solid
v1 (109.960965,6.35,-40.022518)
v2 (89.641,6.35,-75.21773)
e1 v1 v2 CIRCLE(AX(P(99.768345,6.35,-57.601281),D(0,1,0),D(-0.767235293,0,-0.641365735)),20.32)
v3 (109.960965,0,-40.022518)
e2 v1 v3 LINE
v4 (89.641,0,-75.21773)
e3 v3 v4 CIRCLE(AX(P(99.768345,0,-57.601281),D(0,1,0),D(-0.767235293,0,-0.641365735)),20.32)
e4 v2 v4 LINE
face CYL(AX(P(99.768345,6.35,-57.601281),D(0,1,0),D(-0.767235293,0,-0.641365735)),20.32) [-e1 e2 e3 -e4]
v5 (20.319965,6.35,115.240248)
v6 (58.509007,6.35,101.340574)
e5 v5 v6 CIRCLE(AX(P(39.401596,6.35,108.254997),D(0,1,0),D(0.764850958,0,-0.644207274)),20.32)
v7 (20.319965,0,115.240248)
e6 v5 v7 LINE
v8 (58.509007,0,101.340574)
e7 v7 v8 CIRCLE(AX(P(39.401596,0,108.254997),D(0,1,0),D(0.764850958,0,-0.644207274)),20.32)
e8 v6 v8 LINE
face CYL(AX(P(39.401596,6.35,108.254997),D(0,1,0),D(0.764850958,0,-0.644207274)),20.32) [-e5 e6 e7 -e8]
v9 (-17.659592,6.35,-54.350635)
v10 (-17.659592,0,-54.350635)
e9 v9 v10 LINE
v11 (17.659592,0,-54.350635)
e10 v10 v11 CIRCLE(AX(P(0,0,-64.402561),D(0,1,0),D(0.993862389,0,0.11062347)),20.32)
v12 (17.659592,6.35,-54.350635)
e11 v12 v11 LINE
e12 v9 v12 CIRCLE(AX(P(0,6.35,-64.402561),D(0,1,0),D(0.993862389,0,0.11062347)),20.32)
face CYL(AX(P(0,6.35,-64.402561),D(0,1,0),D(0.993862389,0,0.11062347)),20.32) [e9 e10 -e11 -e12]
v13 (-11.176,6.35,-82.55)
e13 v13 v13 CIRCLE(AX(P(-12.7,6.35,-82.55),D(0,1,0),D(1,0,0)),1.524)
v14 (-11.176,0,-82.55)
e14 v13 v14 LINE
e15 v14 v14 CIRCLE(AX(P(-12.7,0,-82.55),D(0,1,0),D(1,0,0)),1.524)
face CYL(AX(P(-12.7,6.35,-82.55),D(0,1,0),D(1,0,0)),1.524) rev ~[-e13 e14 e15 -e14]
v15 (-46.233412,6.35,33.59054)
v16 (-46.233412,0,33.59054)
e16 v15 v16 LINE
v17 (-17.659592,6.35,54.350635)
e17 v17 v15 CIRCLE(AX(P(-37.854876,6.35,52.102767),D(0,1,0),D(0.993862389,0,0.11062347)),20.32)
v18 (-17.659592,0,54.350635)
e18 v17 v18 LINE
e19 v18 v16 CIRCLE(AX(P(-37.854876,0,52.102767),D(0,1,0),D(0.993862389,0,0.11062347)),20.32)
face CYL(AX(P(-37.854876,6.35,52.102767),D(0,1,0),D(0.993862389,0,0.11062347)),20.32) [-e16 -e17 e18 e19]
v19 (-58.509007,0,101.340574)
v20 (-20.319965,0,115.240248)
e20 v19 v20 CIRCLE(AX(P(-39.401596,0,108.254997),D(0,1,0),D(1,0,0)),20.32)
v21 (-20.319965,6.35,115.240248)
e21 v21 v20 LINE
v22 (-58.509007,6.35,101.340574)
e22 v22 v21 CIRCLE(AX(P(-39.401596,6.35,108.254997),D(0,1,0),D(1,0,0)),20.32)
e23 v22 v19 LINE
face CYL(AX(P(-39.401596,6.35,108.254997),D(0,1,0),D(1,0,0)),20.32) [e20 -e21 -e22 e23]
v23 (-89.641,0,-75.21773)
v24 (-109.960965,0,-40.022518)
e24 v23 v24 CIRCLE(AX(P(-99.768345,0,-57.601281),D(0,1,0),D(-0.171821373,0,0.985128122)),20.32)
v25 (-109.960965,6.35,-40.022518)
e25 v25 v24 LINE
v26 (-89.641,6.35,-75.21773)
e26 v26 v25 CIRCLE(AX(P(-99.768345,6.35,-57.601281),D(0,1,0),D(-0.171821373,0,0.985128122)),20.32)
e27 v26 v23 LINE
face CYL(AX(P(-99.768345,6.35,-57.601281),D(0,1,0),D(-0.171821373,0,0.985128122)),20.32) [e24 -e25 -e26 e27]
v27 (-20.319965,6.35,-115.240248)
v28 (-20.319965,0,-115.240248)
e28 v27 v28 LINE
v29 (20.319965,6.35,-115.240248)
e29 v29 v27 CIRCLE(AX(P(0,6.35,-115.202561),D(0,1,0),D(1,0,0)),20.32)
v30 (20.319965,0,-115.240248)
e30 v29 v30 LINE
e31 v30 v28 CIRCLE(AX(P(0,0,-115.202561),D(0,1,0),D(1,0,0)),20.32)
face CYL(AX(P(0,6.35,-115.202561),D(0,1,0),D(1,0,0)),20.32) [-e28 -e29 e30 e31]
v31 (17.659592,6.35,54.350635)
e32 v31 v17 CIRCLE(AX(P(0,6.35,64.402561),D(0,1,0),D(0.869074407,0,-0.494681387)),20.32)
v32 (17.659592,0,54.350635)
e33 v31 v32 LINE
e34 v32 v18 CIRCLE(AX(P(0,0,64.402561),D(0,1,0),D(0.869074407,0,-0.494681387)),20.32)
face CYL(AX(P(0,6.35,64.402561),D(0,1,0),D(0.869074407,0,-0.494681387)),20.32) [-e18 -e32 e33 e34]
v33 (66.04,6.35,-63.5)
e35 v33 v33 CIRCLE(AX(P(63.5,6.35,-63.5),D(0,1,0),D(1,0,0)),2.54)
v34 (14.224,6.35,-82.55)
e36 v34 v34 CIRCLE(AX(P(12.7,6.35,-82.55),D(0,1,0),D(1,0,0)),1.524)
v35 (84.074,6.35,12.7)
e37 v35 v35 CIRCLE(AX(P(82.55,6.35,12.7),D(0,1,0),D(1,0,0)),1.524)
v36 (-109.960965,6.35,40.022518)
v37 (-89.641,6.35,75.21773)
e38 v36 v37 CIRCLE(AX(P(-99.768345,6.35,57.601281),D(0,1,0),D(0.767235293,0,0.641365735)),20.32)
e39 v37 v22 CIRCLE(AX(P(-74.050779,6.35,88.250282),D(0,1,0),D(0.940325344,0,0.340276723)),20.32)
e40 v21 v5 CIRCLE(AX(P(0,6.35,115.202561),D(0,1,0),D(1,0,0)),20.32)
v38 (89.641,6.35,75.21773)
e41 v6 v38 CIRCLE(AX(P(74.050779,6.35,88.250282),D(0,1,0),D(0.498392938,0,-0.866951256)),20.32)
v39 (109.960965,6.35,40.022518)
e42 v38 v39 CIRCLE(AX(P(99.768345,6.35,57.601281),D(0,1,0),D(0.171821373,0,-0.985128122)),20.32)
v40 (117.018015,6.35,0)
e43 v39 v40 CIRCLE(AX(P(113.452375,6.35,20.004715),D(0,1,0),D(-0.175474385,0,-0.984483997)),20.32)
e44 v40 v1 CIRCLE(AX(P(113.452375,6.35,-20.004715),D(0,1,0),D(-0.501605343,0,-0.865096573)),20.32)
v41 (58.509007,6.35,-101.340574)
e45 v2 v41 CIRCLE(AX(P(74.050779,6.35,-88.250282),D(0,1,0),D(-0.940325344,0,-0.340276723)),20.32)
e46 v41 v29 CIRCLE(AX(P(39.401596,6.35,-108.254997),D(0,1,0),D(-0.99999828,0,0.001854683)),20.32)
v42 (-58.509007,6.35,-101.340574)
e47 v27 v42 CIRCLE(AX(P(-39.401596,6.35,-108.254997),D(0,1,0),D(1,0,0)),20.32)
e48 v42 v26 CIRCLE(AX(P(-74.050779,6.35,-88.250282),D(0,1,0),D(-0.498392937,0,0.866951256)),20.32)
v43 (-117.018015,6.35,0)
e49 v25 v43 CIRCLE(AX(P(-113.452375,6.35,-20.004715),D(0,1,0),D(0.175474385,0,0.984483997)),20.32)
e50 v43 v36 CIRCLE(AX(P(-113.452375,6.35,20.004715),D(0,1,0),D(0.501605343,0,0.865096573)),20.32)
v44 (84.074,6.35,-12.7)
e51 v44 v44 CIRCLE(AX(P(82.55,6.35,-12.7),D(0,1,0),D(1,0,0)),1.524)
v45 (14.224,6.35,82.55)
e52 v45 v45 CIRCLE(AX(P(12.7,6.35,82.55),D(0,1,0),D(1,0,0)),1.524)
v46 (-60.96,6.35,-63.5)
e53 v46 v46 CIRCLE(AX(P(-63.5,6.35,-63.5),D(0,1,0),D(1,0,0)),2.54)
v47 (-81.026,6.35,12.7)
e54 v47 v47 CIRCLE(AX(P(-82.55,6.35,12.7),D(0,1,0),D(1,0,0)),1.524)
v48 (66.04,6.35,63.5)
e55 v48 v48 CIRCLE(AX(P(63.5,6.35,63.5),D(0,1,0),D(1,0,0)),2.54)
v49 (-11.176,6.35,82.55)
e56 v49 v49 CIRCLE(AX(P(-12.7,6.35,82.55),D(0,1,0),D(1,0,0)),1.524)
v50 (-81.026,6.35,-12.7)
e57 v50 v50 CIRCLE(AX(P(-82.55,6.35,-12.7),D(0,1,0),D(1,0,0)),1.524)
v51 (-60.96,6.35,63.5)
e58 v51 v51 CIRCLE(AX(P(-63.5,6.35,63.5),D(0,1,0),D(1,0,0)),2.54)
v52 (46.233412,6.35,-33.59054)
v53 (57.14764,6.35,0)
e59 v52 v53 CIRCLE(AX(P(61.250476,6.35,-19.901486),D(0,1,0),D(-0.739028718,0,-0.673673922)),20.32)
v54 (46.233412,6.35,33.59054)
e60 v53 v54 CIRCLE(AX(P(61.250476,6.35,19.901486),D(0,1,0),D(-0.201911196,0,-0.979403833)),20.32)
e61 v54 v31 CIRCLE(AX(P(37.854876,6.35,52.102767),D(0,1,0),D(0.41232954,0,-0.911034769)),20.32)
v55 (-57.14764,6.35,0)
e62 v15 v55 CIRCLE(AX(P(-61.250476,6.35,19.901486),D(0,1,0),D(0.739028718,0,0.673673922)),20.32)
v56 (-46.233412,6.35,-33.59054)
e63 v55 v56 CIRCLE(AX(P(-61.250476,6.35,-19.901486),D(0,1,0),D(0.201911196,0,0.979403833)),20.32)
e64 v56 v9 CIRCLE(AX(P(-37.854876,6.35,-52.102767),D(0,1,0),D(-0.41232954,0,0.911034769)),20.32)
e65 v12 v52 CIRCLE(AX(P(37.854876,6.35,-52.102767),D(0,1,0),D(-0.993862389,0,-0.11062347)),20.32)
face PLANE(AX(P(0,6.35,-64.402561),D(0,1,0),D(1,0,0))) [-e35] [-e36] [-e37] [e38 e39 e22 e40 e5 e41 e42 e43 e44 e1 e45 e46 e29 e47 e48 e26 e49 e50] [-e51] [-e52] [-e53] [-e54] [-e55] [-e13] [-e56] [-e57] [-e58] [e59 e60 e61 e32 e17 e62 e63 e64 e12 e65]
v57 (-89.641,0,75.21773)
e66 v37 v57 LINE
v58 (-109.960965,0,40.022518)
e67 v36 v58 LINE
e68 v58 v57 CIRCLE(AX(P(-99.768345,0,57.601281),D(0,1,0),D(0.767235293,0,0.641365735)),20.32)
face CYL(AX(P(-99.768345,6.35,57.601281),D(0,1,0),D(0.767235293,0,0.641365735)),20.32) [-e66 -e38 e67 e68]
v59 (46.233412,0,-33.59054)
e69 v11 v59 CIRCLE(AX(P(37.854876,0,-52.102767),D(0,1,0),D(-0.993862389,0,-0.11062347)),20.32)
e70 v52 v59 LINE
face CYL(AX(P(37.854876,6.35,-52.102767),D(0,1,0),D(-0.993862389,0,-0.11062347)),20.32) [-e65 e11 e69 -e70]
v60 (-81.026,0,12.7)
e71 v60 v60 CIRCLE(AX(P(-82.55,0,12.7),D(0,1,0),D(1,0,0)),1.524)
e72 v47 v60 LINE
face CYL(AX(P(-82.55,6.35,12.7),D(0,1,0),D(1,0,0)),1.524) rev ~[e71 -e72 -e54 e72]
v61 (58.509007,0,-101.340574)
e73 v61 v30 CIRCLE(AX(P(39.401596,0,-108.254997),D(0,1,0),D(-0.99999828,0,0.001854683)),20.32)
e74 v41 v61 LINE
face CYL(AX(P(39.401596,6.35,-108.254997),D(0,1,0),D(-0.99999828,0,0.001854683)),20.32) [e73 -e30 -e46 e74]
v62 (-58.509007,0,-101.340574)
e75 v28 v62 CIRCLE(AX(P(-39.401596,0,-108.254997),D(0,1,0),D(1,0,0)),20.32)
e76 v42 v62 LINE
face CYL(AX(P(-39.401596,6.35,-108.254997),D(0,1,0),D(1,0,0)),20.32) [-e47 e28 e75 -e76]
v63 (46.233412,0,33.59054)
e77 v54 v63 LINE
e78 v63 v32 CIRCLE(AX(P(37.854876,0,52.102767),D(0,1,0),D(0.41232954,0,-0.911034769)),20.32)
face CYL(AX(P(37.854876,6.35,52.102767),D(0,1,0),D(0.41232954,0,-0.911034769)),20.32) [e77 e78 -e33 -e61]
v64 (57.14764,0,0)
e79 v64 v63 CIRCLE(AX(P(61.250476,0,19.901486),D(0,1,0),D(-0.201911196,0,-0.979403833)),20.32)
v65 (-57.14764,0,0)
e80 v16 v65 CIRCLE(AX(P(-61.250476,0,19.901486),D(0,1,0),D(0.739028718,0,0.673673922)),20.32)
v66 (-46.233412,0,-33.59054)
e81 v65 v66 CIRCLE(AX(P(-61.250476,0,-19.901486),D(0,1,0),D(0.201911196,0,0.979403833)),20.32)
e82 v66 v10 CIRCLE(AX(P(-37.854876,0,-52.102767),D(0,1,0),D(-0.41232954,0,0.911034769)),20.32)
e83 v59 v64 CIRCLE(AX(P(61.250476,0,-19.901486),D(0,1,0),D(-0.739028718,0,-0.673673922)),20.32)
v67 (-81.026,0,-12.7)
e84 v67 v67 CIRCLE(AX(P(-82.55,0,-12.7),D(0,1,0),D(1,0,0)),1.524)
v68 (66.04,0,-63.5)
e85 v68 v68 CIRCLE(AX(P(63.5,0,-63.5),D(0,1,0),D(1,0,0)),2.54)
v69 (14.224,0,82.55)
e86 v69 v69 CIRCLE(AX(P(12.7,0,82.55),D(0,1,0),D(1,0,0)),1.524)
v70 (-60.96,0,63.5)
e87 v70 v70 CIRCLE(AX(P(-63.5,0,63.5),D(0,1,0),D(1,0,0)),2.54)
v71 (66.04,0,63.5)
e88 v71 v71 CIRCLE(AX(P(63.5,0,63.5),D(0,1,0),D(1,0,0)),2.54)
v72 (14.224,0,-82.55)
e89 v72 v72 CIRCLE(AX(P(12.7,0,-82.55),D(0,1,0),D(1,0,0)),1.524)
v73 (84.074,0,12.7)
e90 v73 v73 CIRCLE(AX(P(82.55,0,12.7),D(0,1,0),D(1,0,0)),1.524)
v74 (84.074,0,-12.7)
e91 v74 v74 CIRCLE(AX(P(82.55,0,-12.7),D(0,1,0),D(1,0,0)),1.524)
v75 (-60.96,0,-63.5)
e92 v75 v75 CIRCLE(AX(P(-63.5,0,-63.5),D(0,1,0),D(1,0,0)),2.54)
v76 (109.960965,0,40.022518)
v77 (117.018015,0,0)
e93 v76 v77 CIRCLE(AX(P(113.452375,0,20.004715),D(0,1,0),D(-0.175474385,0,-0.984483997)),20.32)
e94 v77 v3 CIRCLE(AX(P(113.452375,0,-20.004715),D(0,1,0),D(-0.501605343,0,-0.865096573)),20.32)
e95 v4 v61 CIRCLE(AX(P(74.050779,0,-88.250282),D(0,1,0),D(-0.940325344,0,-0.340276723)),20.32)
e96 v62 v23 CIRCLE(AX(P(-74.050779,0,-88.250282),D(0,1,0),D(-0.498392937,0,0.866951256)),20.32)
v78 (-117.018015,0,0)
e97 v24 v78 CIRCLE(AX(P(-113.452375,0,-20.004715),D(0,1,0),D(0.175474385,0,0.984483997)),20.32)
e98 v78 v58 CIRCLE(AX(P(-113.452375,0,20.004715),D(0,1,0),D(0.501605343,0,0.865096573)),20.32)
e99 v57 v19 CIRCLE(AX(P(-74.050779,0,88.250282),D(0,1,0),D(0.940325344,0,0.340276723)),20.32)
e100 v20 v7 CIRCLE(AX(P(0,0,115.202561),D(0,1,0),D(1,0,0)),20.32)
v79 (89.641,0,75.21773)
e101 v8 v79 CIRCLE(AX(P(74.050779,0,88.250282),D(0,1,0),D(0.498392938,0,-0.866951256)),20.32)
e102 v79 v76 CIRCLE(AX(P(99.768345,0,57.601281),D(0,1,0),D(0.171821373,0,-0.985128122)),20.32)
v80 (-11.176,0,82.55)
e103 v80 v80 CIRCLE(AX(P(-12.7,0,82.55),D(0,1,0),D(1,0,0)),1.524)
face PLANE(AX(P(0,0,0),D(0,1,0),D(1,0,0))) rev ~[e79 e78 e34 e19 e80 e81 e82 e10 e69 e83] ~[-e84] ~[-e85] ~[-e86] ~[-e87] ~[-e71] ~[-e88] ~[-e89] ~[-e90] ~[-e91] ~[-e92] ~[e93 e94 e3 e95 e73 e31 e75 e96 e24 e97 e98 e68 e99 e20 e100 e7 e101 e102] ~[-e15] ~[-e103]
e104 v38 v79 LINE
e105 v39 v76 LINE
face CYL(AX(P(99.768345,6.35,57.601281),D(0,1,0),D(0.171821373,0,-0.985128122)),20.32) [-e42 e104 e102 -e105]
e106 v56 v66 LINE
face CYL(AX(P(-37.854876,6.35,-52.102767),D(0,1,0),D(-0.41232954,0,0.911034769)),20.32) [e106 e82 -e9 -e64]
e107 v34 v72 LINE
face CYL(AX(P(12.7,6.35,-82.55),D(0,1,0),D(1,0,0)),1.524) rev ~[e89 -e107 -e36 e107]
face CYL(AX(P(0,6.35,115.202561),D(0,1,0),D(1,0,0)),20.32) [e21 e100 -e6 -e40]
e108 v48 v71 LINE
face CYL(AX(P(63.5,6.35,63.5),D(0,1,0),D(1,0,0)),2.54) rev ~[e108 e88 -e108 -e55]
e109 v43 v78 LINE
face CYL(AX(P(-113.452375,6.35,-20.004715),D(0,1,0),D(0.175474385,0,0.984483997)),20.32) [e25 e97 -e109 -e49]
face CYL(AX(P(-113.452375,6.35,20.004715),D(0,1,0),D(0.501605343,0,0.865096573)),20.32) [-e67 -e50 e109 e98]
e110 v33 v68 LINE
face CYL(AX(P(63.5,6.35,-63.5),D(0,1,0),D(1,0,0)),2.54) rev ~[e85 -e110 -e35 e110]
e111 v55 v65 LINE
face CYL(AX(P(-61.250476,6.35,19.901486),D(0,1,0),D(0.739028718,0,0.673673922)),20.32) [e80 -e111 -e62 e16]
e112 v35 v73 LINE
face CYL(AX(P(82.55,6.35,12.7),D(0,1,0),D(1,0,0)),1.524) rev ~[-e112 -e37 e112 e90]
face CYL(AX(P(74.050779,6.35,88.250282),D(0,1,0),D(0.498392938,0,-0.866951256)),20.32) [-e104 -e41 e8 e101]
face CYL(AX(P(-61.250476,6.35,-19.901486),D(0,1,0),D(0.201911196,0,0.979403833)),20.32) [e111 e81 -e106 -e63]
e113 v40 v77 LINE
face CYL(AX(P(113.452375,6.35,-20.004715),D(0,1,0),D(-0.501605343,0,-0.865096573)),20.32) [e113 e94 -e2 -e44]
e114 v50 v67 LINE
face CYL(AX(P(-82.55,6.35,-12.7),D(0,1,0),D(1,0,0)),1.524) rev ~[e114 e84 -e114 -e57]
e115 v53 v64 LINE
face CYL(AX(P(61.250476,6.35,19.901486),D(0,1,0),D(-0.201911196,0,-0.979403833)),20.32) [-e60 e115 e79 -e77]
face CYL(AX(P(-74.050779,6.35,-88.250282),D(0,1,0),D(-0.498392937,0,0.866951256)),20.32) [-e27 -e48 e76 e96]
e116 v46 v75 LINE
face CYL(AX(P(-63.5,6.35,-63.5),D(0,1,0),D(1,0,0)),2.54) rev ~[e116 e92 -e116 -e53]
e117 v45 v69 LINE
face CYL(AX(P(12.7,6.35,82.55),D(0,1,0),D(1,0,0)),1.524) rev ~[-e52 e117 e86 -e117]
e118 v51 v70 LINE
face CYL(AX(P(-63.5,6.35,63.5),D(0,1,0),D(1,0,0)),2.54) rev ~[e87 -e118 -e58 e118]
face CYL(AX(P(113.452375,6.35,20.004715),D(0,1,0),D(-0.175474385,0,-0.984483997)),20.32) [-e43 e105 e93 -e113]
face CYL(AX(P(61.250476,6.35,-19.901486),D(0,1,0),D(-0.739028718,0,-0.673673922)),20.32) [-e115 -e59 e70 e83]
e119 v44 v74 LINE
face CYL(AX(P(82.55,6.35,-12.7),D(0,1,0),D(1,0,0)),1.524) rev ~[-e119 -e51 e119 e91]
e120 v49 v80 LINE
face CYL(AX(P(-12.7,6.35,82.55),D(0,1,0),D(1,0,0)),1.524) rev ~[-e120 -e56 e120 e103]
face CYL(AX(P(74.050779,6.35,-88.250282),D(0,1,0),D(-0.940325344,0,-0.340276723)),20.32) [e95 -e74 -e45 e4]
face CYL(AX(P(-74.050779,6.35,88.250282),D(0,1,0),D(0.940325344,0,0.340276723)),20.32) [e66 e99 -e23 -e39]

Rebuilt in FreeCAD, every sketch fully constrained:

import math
import FreeCAD as App
import Part
import Sketcher
Q = App.Units.Quantity

doc = App.newDocument("Part")
body = doc.addObject("PartDesign::Body", "Body")

# Sketch on XZ plane
sketch1 = body.newObject("Sketcher::SketchObject", "Sketch")
sketch1.AttachmentSupport = (doc.getObject("XZ_Plane"), [""])
sketch1.MapMode = "FlatFace"
sketch1.addGeometry(Part.Circle(App.Vector(0, 0, 0), App.Vector(0, 0, 1), 115), False)
sketch1.addGeometry(Part.Circle(App.Vector(0, 0, 0), App.Vector(0, 0, 1), 64), False)
sketch1.addConstraint(Sketcher.Constraint("Coincident", 0, 3, -1, 1))
sketch1.addConstraint(Sketcher.Constraint("Coincident", 1, 3, -1, 1))
sketch1.addConstraint(Sketcher.Constraint("Diameter", 0, 230.405122))
sketch1.addConstraint(Sketcher.Constraint("Diameter", 1, 128.805122))
pad1 = body.newObject("PartDesign::Pad", "Pad")
pad1.Profile = sketch1
pad1.Length = Q("0.25 in")
pad1.Reversed = True

# Sketch on XZ plane
sketch2 = body.newObject("Sketcher::SketchObject", "Sketch001")
sketch2.AttachmentSupport = (doc.getObject("XZ_Plane"), [""])
sketch2.MapMode = "FlatFace"
sketch2.AttachmentOffset = App.Placement(App.Vector(0, 0, -0.25 * 25.4), App.Rotation())
sketch2.addGeometry(Part.ArcOfCircle(Part.Circle(App.Vector(-61, -20, 0), App.Vector(0, 0, 1), 20), math.radians(102), math.radians(294)), False)
sketch2.addGeometry(Part.ArcOfCircle(Part.Circle(App.Vector(-61, 20, 0), App.Vector(0, 0, 1), 20), math.radians(66), math.radians(258)), False)
sketch2.addGeometry(Part.ArcOfCircle(Part.Circle(App.Vector(-38, 52, 0), App.Vector(0, 0, 1), 20), math.radians(30), math.radians(222)), False)
sketch2.addGeometry(Part.ArcOfCircle(Part.Circle(App.Vector(0, 64, 0), App.Vector(0, 0, 1), 20), math.radians(-6), math.radians(186)), False)
sketch2.addGeometry(Part.ArcOfCircle(Part.Circle(App.Vector(38, 52, 0), App.Vector(0, 0, 1), 20), math.radians(-42), math.radians(150)), False)
sketch2.addGeometry(Part.ArcOfCircle(Part.Circle(App.Vector(61, 20, 0), App.Vector(0, 0, 1), 20), math.radians(-78), math.radians(114)), False)
sketch2.addGeometry(Part.ArcOfCircle(Part.Circle(App.Vector(61, -20, 0), App.Vector(0, 0, 1), 20), math.radians(-114), math.radians(78)), False)
sketch2.addGeometry(Part.ArcOfCircle(Part.Circle(App.Vector(38, -52, 0), App.Vector(0, 0, 1), 20), math.radians(-150), math.radians(42)), False)
sketch2.addGeometry(Part.ArcOfCircle(Part.Circle(App.Vector(0, -64, 0), App.Vector(0, 0, 1), 20), math.radians(174), math.radians(366)), False)
sketch2.addGeometry(Part.ArcOfCircle(Part.Circle(App.Vector(-38, -52, 0), App.Vector(0, 0, 1), 20), math.radians(138), math.radians(330)), False)
sketch2.addGeometry(Part.ArcOfCircle(Part.Circle(App.Vector(-61, -20, 0), App.Vector(0, 0, 1), 20), math.radians(-42), math.radians(78)), False)
sketch2.addGeometry(Part.ArcOfCircle(Part.Circle(App.Vector(-38, -52, 0), App.Vector(0, 0, 1), 20), math.radians(-6), math.radians(114)), False)
sketch2.addGeometry(Part.ArcOfCircle(Part.Circle(App.Vector(0, -64, 0), App.Vector(0, 0, 1), 20), math.radians(30), math.radians(150)), False)
sketch2.addGeometry(Part.ArcOfCircle(Part.Circle(App.Vector(38, -52, 0), App.Vector(0, 0, 1), 20), math.radians(66), math.radians(186)), False)
sketch2.addGeometry(Part.ArcOfCircle(Part.Circle(App.Vector(61, -20, 0), App.Vector(0, 0, 1), 20), math.radians(102), math.radians(222)), False)
sketch2.addGeometry(Part.ArcOfCircle(Part.Circle(App.Vector(61, 20, 0), App.Vector(0, 0, 1), 20), math.radians(138), math.radians(258)), False)
sketch2.addGeometry(Part.ArcOfCircle(Part.Circle(App.Vector(38, 52, 0), App.Vector(0, 0, 1), 20), math.radians(174), math.radians(294)), False)
sketch2.addGeometry(Part.ArcOfCircle(Part.Circle(App.Vector(0, 64, 0), App.Vector(0, 0, 1), 20), math.radians(-150), math.radians(-30)), False)
sketch2.addGeometry(Part.ArcOfCircle(Part.Circle(App.Vector(-38, 52, 0), App.Vector(0, 0, 1), 20), math.radians(-114), math.radians(6)), False)
sketch2.addGeometry(Part.ArcOfCircle(Part.Circle(App.Vector(-61, 20, 0), App.Vector(0, 0, 1), 20), math.radians(-78), math.radians(42)), False)
sketch2.addGeometry(Part.ArcOfCircle(Part.Circle(App.Vector(-100, -58, 0), App.Vector(0, 0, 1), 20), math.radians(120), math.radians(300)), False)
sketch2.addGeometry(Part.ArcOfCircle(Part.Circle(App.Vector(-113, -20, 0), App.Vector(0, 0, 1), 20), math.radians(100), math.radians(280)), False)
sketch2.addGeometry(Part.ArcOfCircle(Part.Circle(App.Vector(-113, 20, 0), App.Vector(0, 0, 1), 20), math.radians(80), math.radians(260)), False)
sketch2.addGeometry(Part.ArcOfCircle(Part.Circle(App.Vector(-100, 58, 0), App.Vector(0, 0, 1), 20), math.radians(60), math.radians(240)), False)
sketch2.addGeometry(Part.ArcOfCircle(Part.Circle(App.Vector(-74, 88, 0), App.Vector(0, 0, 1), 20), math.radians(40), math.radians(220)), False)
sketch2.addGeometry(Part.ArcOfCircle(Part.Circle(App.Vector(-39, 108, 0), App.Vector(0, 0, 1), 20), math.radians(20), math.radians(200)), False)
sketch2.addGeometry(Part.ArcOfCircle(Part.Circle(App.Vector(0, 115, 0), App.Vector(0, 0, 1), 20), math.radians(0), math.radians(180)), False)
sketch2.addGeometry(Part.ArcOfCircle(Part.Circle(App.Vector(39, 108, 0), App.Vector(0, 0, 1), 20), math.radians(-20), math.radians(160)), False)
sketch2.addGeometry(Part.ArcOfCircle(Part.Circle(App.Vector(74, 88, 0), App.Vector(0, 0, 1), 20), math.radians(-40), math.radians(140)), False)
sketch2.addGeometry(Part.ArcOfCircle(Part.Circle(App.Vector(100, 58, 0), App.Vector(0, 0, 1), 20), math.radians(-60), math.radians(120)), False)
sketch2.addGeometry(Part.ArcOfCircle(Part.Circle(App.Vector(113, 20, 0), App.Vector(0, 0, 1), 20), math.radians(-80), math.radians(100)), False)
sketch2.addGeometry(Part.ArcOfCircle(Part.Circle(App.Vector(113, -20, 0), App.Vector(0, 0, 1), 20), math.radians(-100), math.radians(80)), False)
sketch2.addGeometry(Part.ArcOfCircle(Part.Circle(App.Vector(100, -58, 0), App.Vector(0, 0, 1), 20), math.radians(-120), math.radians(60)), False)
sketch2.addGeometry(Part.ArcOfCircle(Part.Circle(App.Vector(74, -88, 0), App.Vector(0, 0, 1), 20), math.radians(-140), math.radians(40)), False)
sketch2.addGeometry(Part.ArcOfCircle(Part.Circle(App.Vector(39, -108, 0), App.Vector(0, 0, 1), 20), math.radians(-160), math.radians(20)), False)
sketch2.addGeometry(Part.ArcOfCircle(Part.Circle(App.Vector(0, -115, 0), App.Vector(0, 0, 1), 20), math.radians(-180), math.radians(0)), False)
sketch2.addGeometry(Part.ArcOfCircle(Part.Circle(App.Vector(-39, -108, 0), App.Vector(0, 0, 1), 20), math.radians(160), math.radians(340)), False)
sketch2.addGeometry(Part.ArcOfCircle(Part.Circle(App.Vector(-74, -88, 0), App.Vector(0, 0, 1), 20), math.radians(140), math.radians(320)), False)
sketch2.addGeometry(Part.ArcOfCircle(Part.Circle(App.Vector(-74, -88, 0), App.Vector(0, 0, 1), 20), math.radians(-20), math.radians(120)), False)
sketch2.addGeometry(Part.ArcOfCircle(Part.Circle(App.Vector(-39, -108, 0), App.Vector(0, 0, 1), 20), math.radians(0), math.radians(140)), False)
sketch2.addGeometry(Part.ArcOfCircle(Part.Circle(App.Vector(0, -115, 0), App.Vector(0, 0, 1), 20), math.radians(20), math.radians(160)), False)
sketch2.addGeometry(Part.ArcOfCircle(Part.Circle(App.Vector(39, -108, 0), App.Vector(0, 0, 1), 20), math.radians(40), math.radians(180)), False)
sketch2.addGeometry(Part.ArcOfCircle(Part.Circle(App.Vector(74, -88, 0), App.Vector(0, 0, 1), 20), math.radians(60), math.radians(200)), False)
sketch2.addGeometry(Part.ArcOfCircle(Part.Circle(App.Vector(100, -58, 0), App.Vector(0, 0, 1), 20), math.radians(80), math.radians(220)), False)
sketch2.addGeometry(Part.ArcOfCircle(Part.Circle(App.Vector(113, -20, 0), App.Vector(0, 0, 1), 20), math.radians(100), math.radians(240)), False)
sketch2.addGeometry(Part.ArcOfCircle(Part.Circle(App.Vector(113, 20, 0), App.Vector(0, 0, 1), 20), math.radians(120), math.radians(260)), False)
sketch2.addGeometry(Part.ArcOfCircle(Part.Circle(App.Vector(100, 58, 0), App.Vector(0, 0, 1), 20), math.radians(140), math.radians(280)), False)
sketch2.addGeometry(Part.ArcOfCircle(Part.Circle(App.Vector(74, 88, 0), App.Vector(0, 0, 1), 20), math.radians(160), math.radians(300)), False)
sketch2.addGeometry(Part.ArcOfCircle(Part.Circle(App.Vector(39, 108, 0), App.Vector(0, 0, 1), 20), math.radians(-180), math.radians(-40)), False)
sketch2.addGeometry(Part.ArcOfCircle(Part.Circle(App.Vector(0, 115, 0), App.Vector(0, 0, 1), 20), math.radians(-160), math.radians(-20)), False)
sketch2.addGeometry(Part.ArcOfCircle(Part.Circle(App.Vector(-39, 108, 0), App.Vector(0, 0, 1), 20), math.radians(-140), math.radians(0)), False)
sketch2.addGeometry(Part.ArcOfCircle(Part.Circle(App.Vector(-74, 88, 0), App.Vector(0, 0, 1), 20), math.radians(-120), math.radians(20)), False)
sketch2.addGeometry(Part.ArcOfCircle(Part.Circle(App.Vector(-100, 58, 0), App.Vector(0, 0, 1), 20), math.radians(-100), math.radians(40)), False)
sketch2.addGeometry(Part.ArcOfCircle(Part.Circle(App.Vector(-113, 20, 0), App.Vector(0, 0, 1), 20), math.radians(-80), math.radians(60)), False)
sketch2.addGeometry(Part.ArcOfCircle(Part.Circle(App.Vector(-113, -20, 0), App.Vector(0, 0, 1), 20), math.radians(-60), math.radians(80)), False)
sketch2.addGeometry(Part.ArcOfCircle(Part.Circle(App.Vector(-100, -58, 0), App.Vector(0, 0, 1), 20), math.radians(-40), math.radians(100)), False)
sketch2.addConstraint(Sketcher.Constraint("Coincident", 0, 1, 1, 2))
sketch2.addConstraint(Sketcher.Constraint("Coincident", 1, 1, 2, 2))
sketch2.addConstraint(Sketcher.Constraint("Coincident", 2, 1, 3, 2))
sketch2.addConstraint(Sketcher.Constraint("Coincident", 3, 1, 4, 2))
sketch2.addConstraint(Sketcher.Constraint("Coincident", 4, 1, 5, 2))
sketch2.addConstraint(Sketcher.Constraint("Coincident", 5, 1, 6, 2))
sketch2.addConstraint(Sketcher.Constraint("Coincident", 6, 1, 7, 2))
sketch2.addConstraint(Sketcher.Constraint("Coincident", 7, 1, 8, 2))
sketch2.addConstraint(Sketcher.Constraint("Coincident", 8, 1, 9, 2))
sketch2.addConstraint(Sketcher.Constraint("Coincident", 9, 1, 0, 2))
sketch2.addConstraint(Sketcher.Constraint("Coincident", 10, 1, 11, 2))
sketch2.addConstraint(Sketcher.Constraint("Coincident", 11, 1, 12, 2))
sketch2.addConstraint(Sketcher.Constraint("Coincident", 12, 1, 13, 2))
sketch2.addConstraint(Sketcher.Constraint("Coincident", 13, 1, 14, 2))
sketch2.addConstraint(Sketcher.Constraint("Coincident", 14, 1, 15, 2))
sketch2.addConstraint(Sketcher.Constraint("Coincident", 15, 1, 16, 2))
sketch2.addConstraint(Sketcher.Constraint("Coincident", 16, 1, 17, 2))
sketch2.addConstraint(Sketcher.Constraint("Coincident", 17, 1, 18, 2))
sketch2.addConstraint(Sketcher.Constraint("Coincident", 18, 1, 19, 2))
sketch2.addConstraint(Sketcher.Constraint("Coincident", 19, 1, 10, 2))
sketch2.addConstraint(Sketcher.Constraint("Coincident", 20, 1, 21, 2))
sketch2.addConstraint(Sketcher.Constraint("Coincident", 21, 1, 22, 2))
sketch2.addConstraint(Sketcher.Constraint("Coincident", 22, 1, 23, 2))
sketch2.addConstraint(Sketcher.Constraint("Coincident", 23, 1, 24, 2))
sketch2.addConstraint(Sketcher.Constraint("Coincident", 24, 1, 25, 2))
sketch2.addConstraint(Sketcher.Constraint("Coincident", 25, 1, 26, 2))
sketch2.addConstraint(Sketcher.Constraint("Coincident", 26, 1, 27, 2))
sketch2.addConstraint(Sketcher.Constraint("Coincident", 27, 1, 28, 2))
sketch2.addConstraint(Sketcher.Constraint("Coincident", 28, 1, 29, 2))
sketch2.addConstraint(Sketcher.Constraint("Coincident", 29, 1, 30, 2))
sketch2.addConstraint(Sketcher.Constraint("Coincident", 30, 1, 31, 2))
sketch2.addConstraint(Sketcher.Constraint("Coincident", 31, 1, 32, 2))
sketch2.addConstraint(Sketcher.Constraint("Coincident", 32, 1, 33, 2))
sketch2.addConstraint(Sketcher.Constraint("Coincident", 33, 1, 34, 2))
sketch2.addConstraint(Sketcher.Constraint("Coincident", 34, 1, 35, 2))
sketch2.addConstraint(Sketcher.Constraint("Coincident", 35, 1, 36, 2))
sketch2.addConstraint(Sketcher.Constraint("Coincident", 36, 1, 37, 2))
sketch2.addConstraint(Sketcher.Constraint("Coincident", 37, 1, 20, 2))
sketch2.addConstraint(Sketcher.Constraint("Coincident", 38, 1, 39, 2))
sketch2.addConstraint(Sketcher.Constraint("Coincident", 39, 1, 40, 2))
sketch2.addConstraint(Sketcher.Constraint("Coincident", 40, 1, 41, 2))
sketch2.addConstraint(Sketcher.Constraint("Coincident", 41, 1, 42, 2))
sketch2.addConstraint(Sketcher.Constraint("Coincident", 42, 1, 43, 2))
sketch2.addConstraint(Sketcher.Constraint("Coincident", 43, 1, 44, 2))
sketch2.addConstraint(Sketcher.Constraint("Coincident", 44, 1, 45, 2))
sketch2.addConstraint(Sketcher.Constraint("Coincident", 45, 1, 46, 2))
sketch2.addConstraint(Sketcher.Constraint("Coincident", 46, 1, 47, 2))
sketch2.addConstraint(Sketcher.Constraint("Coincident", 47, 1, 48, 2))
sketch2.addConstraint(Sketcher.Constraint("Coincident", 48, 1, 49, 2))
sketch2.addConstraint(Sketcher.Constraint("Coincident", 49, 1, 50, 2))
sketch2.addConstraint(Sketcher.Constraint("Coincident", 50, 1, 51, 2))
sketch2.addConstraint(Sketcher.Constraint("Coincident", 51, 1, 52, 2))
sketch2.addConstraint(Sketcher.Constraint("Coincident", 52, 1, 53, 2))
sketch2.addConstraint(Sketcher.Constraint("Coincident", 53, 1, 54, 2))
sketch2.addConstraint(Sketcher.Constraint("Coincident", 54, 1, 55, 2))
sketch2.addConstraint(Sketcher.Constraint("Coincident", 55, 1, 38, 2))
sketch2.addConstraint(Sketcher.Constraint("Coincident", 10, 3, 0, 3))
sketch2.addConstraint(Sketcher.Constraint("Coincident", 11, 3, 9, 3))
sketch2.addConstraint(Sketcher.Constraint("Coincident", 12, 3, 8, 3))
sketch2.addConstraint(Sketcher.Constraint("Coincident", 13, 3, 7, 3))
sketch2.addConstraint(Sketcher.Constraint("Coincident", 14, 3, 6, 3))
sketch2.addConstraint(Sketcher.Constraint("Coincident", 15, 3, 5, 3))
sketch2.addConstraint(Sketcher.Constraint("Coincident", 16, 3, 4, 3))
sketch2.addConstraint(Sketcher.Constraint("Coincident", 17, 3, 3, 3))
sketch2.addConstraint(Sketcher.Constraint("Coincident", 18, 3, 2, 3))
sketch2.addConstraint(Sketcher.Constraint("Coincident", 19, 3, 1, 3))
sketch2.addConstraint(Sketcher.Constraint("Coincident", 38, 3, 37, 3))
sketch2.addConstraint(Sketcher.Constraint("Coincident", 39, 3, 36, 3))
sketch2.addConstraint(Sketcher.Constraint("Coincident", 40, 3, 35, 3))
sketch2.addConstraint(Sketcher.Constraint("Coincident", 41, 3, 34, 3))
sketch2.addConstraint(Sketcher.Constraint("Coincident", 42, 3, 33, 3))
sketch2.addConstraint(Sketcher.Constraint("Coincident", 43, 3, 32, 3))
sketch2.addConstraint(Sketcher.Constraint("Coincident", 44, 3, 31, 3))
sketch2.addConstraint(Sketcher.Constraint("Coincident", 45, 3, 30, 3))
sketch2.addConstraint(Sketcher.Constraint("Coincident", 46, 3, 29, 3))
sketch2.addConstraint(Sketcher.Constraint("Coincident", 47, 3, 28, 3))
sketch2.addConstraint(Sketcher.Constraint("Coincident", 48, 3, 27, 3))
sketch2.addConstraint(Sketcher.Constraint("Coincident", 49, 3, 26, 3))
sketch2.addConstraint(Sketcher.Constraint("Coincident", 50, 3, 25, 3))
sketch2.addConstraint(Sketcher.Constraint("Coincident", 51, 3, 24, 3))
sketch2.addConstraint(Sketcher.Constraint("Coincident", 52, 3, 23, 3))
sketch2.addConstraint(Sketcher.Constraint("Coincident", 53, 3, 22, 3))
sketch2.addConstraint(Sketcher.Constraint("Coincident", 54, 3, 21, 3))
sketch2.addConstraint(Sketcher.Constraint("Coincident", 55, 3, 20, 3))
sketch2.addConstraint(Sketcher.Constraint("Equal", 0, 1))
sketch2.addConstraint(Sketcher.Constraint("Equal", 1, 2))
sketch2.addConstraint(Sketcher.Constraint("Equal", 2, 3))
sketch2.addConstraint(Sketcher.Constraint("Equal", 3, 4))
sketch2.addConstraint(Sketcher.Constraint("Equal", 4, 5))
sketch2.addConstraint(Sketcher.Constraint("Equal", 5, 6))
sketch2.addConstraint(Sketcher.Constraint("Equal", 6, 7))
sketch2.addConstraint(Sketcher.Constraint("Equal", 7, 8))
sketch2.addConstraint(Sketcher.Constraint("Equal", 8, 9))
sketch2.addConstraint(Sketcher.Constraint("Equal", 9, 10))
sketch2.addConstraint(Sketcher.Constraint("Equal", 10, 11))
sketch2.addConstraint(Sketcher.Constraint("Equal", 11, 12))
sketch2.addConstraint(Sketcher.Constraint("Equal", 12, 13))
sketch2.addConstraint(Sketcher.Constraint("Equal", 13, 14))
sketch2.addConstraint(Sketcher.Constraint("Equal", 14, 15))
sketch2.addConstraint(Sketcher.Constraint("Equal", 15, 16))
sketch2.addConstraint(Sketcher.Constraint("Equal", 16, 17))
sketch2.addConstraint(Sketcher.Constraint("Equal", 17, 18))
sketch2.addConstraint(Sketcher.Constraint("Equal", 18, 19))
sketch2.addConstraint(Sketcher.Constraint("Equal", 19, 20))
sketch2.addConstraint(Sketcher.Constraint("Equal", 20, 21))
sketch2.addConstraint(Sketcher.Constraint("Equal", 21, 22))
sketch2.addConstraint(Sketcher.Constraint("Equal", 22, 23))
sketch2.addConstraint(Sketcher.Constraint("Equal", 23, 24))
sketch2.addConstraint(Sketcher.Constraint("Equal", 24, 25))
sketch2.addConstraint(Sketcher.Constraint("Equal", 25, 26))
sketch2.addConstraint(Sketcher.Constraint("Equal", 26, 27))
sketch2.addConstraint(Sketcher.Constraint("Equal", 27, 28))
sketch2.addConstraint(Sketcher.Constraint("Equal", 28, 29))
sketch2.addConstraint(Sketcher.Constraint("Equal", 29, 30))
sketch2.addConstraint(Sketcher.Constraint("Equal", 30, 31))
sketch2.addConstraint(Sketcher.Constraint("Equal", 31, 32))
sketch2.addConstraint(Sketcher.Constraint("Equal", 32, 33))
sketch2.addConstraint(Sketcher.Constraint("Equal", 33, 34))
sketch2.addConstraint(Sketcher.Constraint("Equal", 34, 35))
sketch2.addConstraint(Sketcher.Constraint("Equal", 35, 36))
sketch2.addConstraint(Sketcher.Constraint("Equal", 36, 37))
sketch2.addConstraint(Sketcher.Constraint("Equal", 37, 38))
sketch2.addConstraint(Sketcher.Constraint("Equal", 38, 39))
sketch2.addConstraint(Sketcher.Constraint("Equal", 39, 40))
sketch2.addConstraint(Sketcher.Constraint("Equal", 40, 41))
sketch2.addConstraint(Sketcher.Constraint("Equal", 41, 42))
sketch2.addConstraint(Sketcher.Constraint("Equal", 42, 43))
sketch2.addConstraint(Sketcher.Constraint("Equal", 43, 44))
sketch2.addConstraint(Sketcher.Constraint("Equal", 44, 45))
sketch2.addConstraint(Sketcher.Constraint("Equal", 45, 46))
sketch2.addConstraint(Sketcher.Constraint("Equal", 46, 47))
sketch2.addConstraint(Sketcher.Constraint("Equal", 47, 48))
sketch2.addConstraint(Sketcher.Constraint("Equal", 48, 49))
sketch2.addConstraint(Sketcher.Constraint("Equal", 49, 50))
sketch2.addConstraint(Sketcher.Constraint("Equal", 50, 51))
sketch2.addConstraint(Sketcher.Constraint("Equal", 51, 52))
sketch2.addConstraint(Sketcher.Constraint("Equal", 52, 53))
sketch2.addConstraint(Sketcher.Constraint("Equal", 53, 54))
sketch2.addConstraint(Sketcher.Constraint("Equal", 54, 55))
sketch2.addConstraint(Sketcher.Constraint("Symmetric", 0, 3, 5, 3, -1, 1))
sketch2.addConstraint(Sketcher.Constraint("Symmetric", 1, 3, 6, 3, -1, 1))
sketch2.addConstraint(Sketcher.Constraint("Symmetric", 2, 3, 7, 3, -1, 1))
sketch2.addConstraint(Sketcher.Constraint("Symmetric", 3, 3, 8, 3, -1, 1))
sketch2.addConstraint(Sketcher.Constraint("Symmetric", 4, 3, 9, 3, -1, 1))
sketch2.addConstraint(Sketcher.Constraint("Symmetric", 20, 3, 29, 3, -1, 1))
sketch2.addConstraint(Sketcher.Constraint("Symmetric", 21, 3, 30, 3, -1, 1))
sketch2.addConstraint(Sketcher.Constraint("Symmetric", 22, 3, 31, 3, -1, 1))
sketch2.addConstraint(Sketcher.Constraint("Symmetric", 23, 3, 32, 3, -1, 1))
sketch2.addConstraint(Sketcher.Constraint("Symmetric", 24, 3, 33, 3, -1, 1))
sketch2.addConstraint(Sketcher.Constraint("Symmetric", 25, 3, 34, 3, -1, 1))
sketch2.addConstraint(Sketcher.Constraint("Symmetric", 26, 3, 35, 3, -1, 1))
sketch2.addConstraint(Sketcher.Constraint("Symmetric", 27, 3, 36, 3, -1, 1))
sketch2.addConstraint(Sketcher.Constraint("Symmetric", 28, 3, 37, 3, -1, 1))
sketch2.addConstraint(Sketcher.Constraint("Symmetric", 2, 3, 4, 3, -2))
sketch2.addConstraint(Sketcher.Constraint("Symmetric", 1, 3, 5, 3, -2))
sketch2.addConstraint(Sketcher.Constraint("Symmetric", 25, 3, 27, 3, -2))
sketch2.addConstraint(Sketcher.Constraint("Symmetric", 24, 3, 28, 3, -2))
sketch2.addConstraint(Sketcher.Constraint("Symmetric", 23, 3, 29, 3, -2))
sketch2.addConstraint(Sketcher.Constraint("Symmetric", 22, 3, 30, 3, -2))
sketch2.addConstraint(Sketcher.Constraint("PointOnObject", 3, 3, -2))
sketch2.addConstraint(Sketcher.Constraint("PointOnObject", 26, 3, -2))
sketch2.addConstraint(Sketcher.Constraint("Radius", 0, Q("0.8 in")))
sketch2.addConstraint(Sketcher.Constraint("DistanceX", 23, 1, -1, 1, 89.641))
sketch2.addConstraint(Sketcher.Constraint("DistanceY", -1, 1, 3, 3, 64.402561))
sketch2.addConstraint(Sketcher.Constraint("DistanceY", 20, 3, -1, 1, 57.601281))
sketch2.addConstraint(Sketcher.Constraint("DistanceX", 24, 3, -1, 1, 74.050779))
sketch2.addConstraint(Sketcher.Constraint("DistanceY", -1, 1, 24, 3, 88.250282))
sketch2.addConstraint(Sketcher.Constraint("DistanceY", -1, 1, 26, 3, 115.202561))
sketch2.addConstraint(Sketcher.Constraint("DistanceX", 0, 1, -1, 1, 65.353311))
sketch2.addConstraint(Sketcher.Constraint("DistanceX", 1, 1, -1, 1, 52.871939))
sketch2.addConstraint(Sketcher.Constraint("DistanceX", 10, 1, -1, 1, 46.233412))
sketch2.addConstraint(Sketcher.Constraint("DistanceY", 10, 1, -1, 1, 33.59054))
sketch2.addConstraint(Sketcher.Constraint("DistanceY", 20, 1, -1, 1, 40.022518))
sketch2.addConstraint(Sketcher.Constraint("DistanceY", -1, 1, 25, 1, 115.240248))
sketch2.addConstraint(Sketcher.Constraint("DistanceX", 39, 1, -1, 1, 19.081631))
sketch2.addConstraint(Sketcher.Constraint("DistanceX", 21, 3, -1, 1, 113.452375))
pad2 = body.newObject("PartDesign::Pad", "Pad001")
pad2.Profile = sketch2
pad2.Length = Q("0.25 in")

# Sketch on XZ plane
sketch3 = body.newObject("Sketcher::SketchObject", "Sketch002")
sketch3.AttachmentSupport = (doc.getObject("XZ_Plane"), [""])
sketch3.MapMode = "FlatFace"
sketch3.AttachmentOffset = App.Placement(App.Vector(0, 0, -0.25 * 25.4), App.Rotation())
sketch3.addGeometry(Part.Circle(App.Vector(-63.5, -63.5, 0), App.Vector(0, 0, 1), 2.5), False)
sketch3.addGeometry(Part.Circle(App.Vector(-63.5, 63.5, 0), App.Vector(0, 0, 1), 2.5), False)
sketch3.addGeometry(Part.Circle(App.Vector(63.5, -63.5, 0), App.Vector(0, 0, 1), 2.5), False)
sketch3.addGeometry(Part.Circle(App.Vector(63.5, 63.5, 0), App.Vector(0, 0, 1), 2.5), False)
sketch3.addGeometry(Part.Circle(App.Vector(-12.7, -82.5, 0), App.Vector(0, 0, 1), 1.5), False)
sketch3.addGeometry(Part.Circle(App.Vector(12.7, -82.5, 0), App.Vector(0, 0, 1), 1.5), False)
sketch3.addGeometry(Part.Circle(App.Vector(82.5, -12.7, 0), App.Vector(0, 0, 1), 1.5), False)
sketch3.addGeometry(Part.Circle(App.Vector(82.5, 12.7, 0), App.Vector(0, 0, 1), 1.5), False)
sketch3.addGeometry(Part.Circle(App.Vector(12.7, 82.5, 0), App.Vector(0, 0, 1), 1.5), False)
sketch3.addGeometry(Part.Circle(App.Vector(-12.7, 82.5, 0), App.Vector(0, 0, 1), 1.5), False)
sketch3.addGeometry(Part.Circle(App.Vector(-82.5, 12.7, 0), App.Vector(0, 0, 1), 1.5), False)
sketch3.addGeometry(Part.Circle(App.Vector(-82.5, -12.7, 0), App.Vector(0, 0, 1), 1.5), False)
sketch3.addConstraint(Sketcher.Constraint("Equal", 0, 1))
sketch3.addConstraint(Sketcher.Constraint("Equal", 1, 2))
sketch3.addConstraint(Sketcher.Constraint("Equal", 2, 3))
sketch3.addConstraint(Sketcher.Constraint("Equal", 4, 5))
sketch3.addConstraint(Sketcher.Constraint("Equal", 5, 6))
sketch3.addConstraint(Sketcher.Constraint("Equal", 6, 7))
sketch3.addConstraint(Sketcher.Constraint("Equal", 7, 8))
sketch3.addConstraint(Sketcher.Constraint("Equal", 8, 9))
sketch3.addConstraint(Sketcher.Constraint("Equal", 9, 10))
sketch3.addConstraint(Sketcher.Constraint("Equal", 10, 11))
sketch3.addConstraint(Sketcher.Constraint("Symmetric", 1, 3, 2, 3, -1, 1))
sketch3.addConstraint(Sketcher.Constraint("Symmetric", 0, 3, 3, 3, -1, 1))
sketch3.addConstraint(Sketcher.Constraint("Symmetric", 4, 3, 8, 3, -1, 1))
sketch3.addConstraint(Sketcher.Constraint("Symmetric", 5, 3, 9, 3, -1, 1))
sketch3.addConstraint(Sketcher.Constraint("Symmetric", 6, 3, 10, 3, -1, 1))
sketch3.addConstraint(Sketcher.Constraint("Symmetric", 7, 3, 11, 3, -1, 1))
sketch3.addConstraint(Sketcher.Constraint("Symmetric", 0, 3, 2, 3, -2))
sketch3.addConstraint(Sketcher.Constraint("Symmetric", 4, 3, 5, 3, -2))
sketch3.addConstraint(Sketcher.Constraint("Symmetric", 7, 3, 10, 3, -2))
sketch3.addConstraint(Sketcher.Constraint("Diameter", 0, Q("0.2 in")))
sketch3.addConstraint(Sketcher.Constraint("Diameter", 4, Q("0.12 in")))
sketch3.addConstraint(Sketcher.Constraint("DistanceY", 0, 3, 1, 3, Q("5 in")))
sketch3.addConstraint(Sketcher.Constraint("DistanceX", 0, 3, 2, 3, Q("5 in")))
sketch3.addConstraint(Sketcher.Constraint("DistanceX", 0, 3, 4, 3, Q("2 in")))
sketch3.addConstraint(Sketcher.Constraint("DistanceY", 2, 3, 6, 3, Q("2 in")))
sketch3.addConstraint(Sketcher.Constraint("DistanceY", 4, 3, -1, 1, Q("3.25 in")))
sketch3.addConstraint(Sketcher.Constraint("DistanceX", -1, 1, 6, 3, Q("3.25 in")))
pocket1 = body.newObject("PartDesign::Pocket", "Pocket")
pocket1.Profile = sketch3
pocket1.Type = "ThroughAll"
pocket1.Reversed = True

doc.recompute()
